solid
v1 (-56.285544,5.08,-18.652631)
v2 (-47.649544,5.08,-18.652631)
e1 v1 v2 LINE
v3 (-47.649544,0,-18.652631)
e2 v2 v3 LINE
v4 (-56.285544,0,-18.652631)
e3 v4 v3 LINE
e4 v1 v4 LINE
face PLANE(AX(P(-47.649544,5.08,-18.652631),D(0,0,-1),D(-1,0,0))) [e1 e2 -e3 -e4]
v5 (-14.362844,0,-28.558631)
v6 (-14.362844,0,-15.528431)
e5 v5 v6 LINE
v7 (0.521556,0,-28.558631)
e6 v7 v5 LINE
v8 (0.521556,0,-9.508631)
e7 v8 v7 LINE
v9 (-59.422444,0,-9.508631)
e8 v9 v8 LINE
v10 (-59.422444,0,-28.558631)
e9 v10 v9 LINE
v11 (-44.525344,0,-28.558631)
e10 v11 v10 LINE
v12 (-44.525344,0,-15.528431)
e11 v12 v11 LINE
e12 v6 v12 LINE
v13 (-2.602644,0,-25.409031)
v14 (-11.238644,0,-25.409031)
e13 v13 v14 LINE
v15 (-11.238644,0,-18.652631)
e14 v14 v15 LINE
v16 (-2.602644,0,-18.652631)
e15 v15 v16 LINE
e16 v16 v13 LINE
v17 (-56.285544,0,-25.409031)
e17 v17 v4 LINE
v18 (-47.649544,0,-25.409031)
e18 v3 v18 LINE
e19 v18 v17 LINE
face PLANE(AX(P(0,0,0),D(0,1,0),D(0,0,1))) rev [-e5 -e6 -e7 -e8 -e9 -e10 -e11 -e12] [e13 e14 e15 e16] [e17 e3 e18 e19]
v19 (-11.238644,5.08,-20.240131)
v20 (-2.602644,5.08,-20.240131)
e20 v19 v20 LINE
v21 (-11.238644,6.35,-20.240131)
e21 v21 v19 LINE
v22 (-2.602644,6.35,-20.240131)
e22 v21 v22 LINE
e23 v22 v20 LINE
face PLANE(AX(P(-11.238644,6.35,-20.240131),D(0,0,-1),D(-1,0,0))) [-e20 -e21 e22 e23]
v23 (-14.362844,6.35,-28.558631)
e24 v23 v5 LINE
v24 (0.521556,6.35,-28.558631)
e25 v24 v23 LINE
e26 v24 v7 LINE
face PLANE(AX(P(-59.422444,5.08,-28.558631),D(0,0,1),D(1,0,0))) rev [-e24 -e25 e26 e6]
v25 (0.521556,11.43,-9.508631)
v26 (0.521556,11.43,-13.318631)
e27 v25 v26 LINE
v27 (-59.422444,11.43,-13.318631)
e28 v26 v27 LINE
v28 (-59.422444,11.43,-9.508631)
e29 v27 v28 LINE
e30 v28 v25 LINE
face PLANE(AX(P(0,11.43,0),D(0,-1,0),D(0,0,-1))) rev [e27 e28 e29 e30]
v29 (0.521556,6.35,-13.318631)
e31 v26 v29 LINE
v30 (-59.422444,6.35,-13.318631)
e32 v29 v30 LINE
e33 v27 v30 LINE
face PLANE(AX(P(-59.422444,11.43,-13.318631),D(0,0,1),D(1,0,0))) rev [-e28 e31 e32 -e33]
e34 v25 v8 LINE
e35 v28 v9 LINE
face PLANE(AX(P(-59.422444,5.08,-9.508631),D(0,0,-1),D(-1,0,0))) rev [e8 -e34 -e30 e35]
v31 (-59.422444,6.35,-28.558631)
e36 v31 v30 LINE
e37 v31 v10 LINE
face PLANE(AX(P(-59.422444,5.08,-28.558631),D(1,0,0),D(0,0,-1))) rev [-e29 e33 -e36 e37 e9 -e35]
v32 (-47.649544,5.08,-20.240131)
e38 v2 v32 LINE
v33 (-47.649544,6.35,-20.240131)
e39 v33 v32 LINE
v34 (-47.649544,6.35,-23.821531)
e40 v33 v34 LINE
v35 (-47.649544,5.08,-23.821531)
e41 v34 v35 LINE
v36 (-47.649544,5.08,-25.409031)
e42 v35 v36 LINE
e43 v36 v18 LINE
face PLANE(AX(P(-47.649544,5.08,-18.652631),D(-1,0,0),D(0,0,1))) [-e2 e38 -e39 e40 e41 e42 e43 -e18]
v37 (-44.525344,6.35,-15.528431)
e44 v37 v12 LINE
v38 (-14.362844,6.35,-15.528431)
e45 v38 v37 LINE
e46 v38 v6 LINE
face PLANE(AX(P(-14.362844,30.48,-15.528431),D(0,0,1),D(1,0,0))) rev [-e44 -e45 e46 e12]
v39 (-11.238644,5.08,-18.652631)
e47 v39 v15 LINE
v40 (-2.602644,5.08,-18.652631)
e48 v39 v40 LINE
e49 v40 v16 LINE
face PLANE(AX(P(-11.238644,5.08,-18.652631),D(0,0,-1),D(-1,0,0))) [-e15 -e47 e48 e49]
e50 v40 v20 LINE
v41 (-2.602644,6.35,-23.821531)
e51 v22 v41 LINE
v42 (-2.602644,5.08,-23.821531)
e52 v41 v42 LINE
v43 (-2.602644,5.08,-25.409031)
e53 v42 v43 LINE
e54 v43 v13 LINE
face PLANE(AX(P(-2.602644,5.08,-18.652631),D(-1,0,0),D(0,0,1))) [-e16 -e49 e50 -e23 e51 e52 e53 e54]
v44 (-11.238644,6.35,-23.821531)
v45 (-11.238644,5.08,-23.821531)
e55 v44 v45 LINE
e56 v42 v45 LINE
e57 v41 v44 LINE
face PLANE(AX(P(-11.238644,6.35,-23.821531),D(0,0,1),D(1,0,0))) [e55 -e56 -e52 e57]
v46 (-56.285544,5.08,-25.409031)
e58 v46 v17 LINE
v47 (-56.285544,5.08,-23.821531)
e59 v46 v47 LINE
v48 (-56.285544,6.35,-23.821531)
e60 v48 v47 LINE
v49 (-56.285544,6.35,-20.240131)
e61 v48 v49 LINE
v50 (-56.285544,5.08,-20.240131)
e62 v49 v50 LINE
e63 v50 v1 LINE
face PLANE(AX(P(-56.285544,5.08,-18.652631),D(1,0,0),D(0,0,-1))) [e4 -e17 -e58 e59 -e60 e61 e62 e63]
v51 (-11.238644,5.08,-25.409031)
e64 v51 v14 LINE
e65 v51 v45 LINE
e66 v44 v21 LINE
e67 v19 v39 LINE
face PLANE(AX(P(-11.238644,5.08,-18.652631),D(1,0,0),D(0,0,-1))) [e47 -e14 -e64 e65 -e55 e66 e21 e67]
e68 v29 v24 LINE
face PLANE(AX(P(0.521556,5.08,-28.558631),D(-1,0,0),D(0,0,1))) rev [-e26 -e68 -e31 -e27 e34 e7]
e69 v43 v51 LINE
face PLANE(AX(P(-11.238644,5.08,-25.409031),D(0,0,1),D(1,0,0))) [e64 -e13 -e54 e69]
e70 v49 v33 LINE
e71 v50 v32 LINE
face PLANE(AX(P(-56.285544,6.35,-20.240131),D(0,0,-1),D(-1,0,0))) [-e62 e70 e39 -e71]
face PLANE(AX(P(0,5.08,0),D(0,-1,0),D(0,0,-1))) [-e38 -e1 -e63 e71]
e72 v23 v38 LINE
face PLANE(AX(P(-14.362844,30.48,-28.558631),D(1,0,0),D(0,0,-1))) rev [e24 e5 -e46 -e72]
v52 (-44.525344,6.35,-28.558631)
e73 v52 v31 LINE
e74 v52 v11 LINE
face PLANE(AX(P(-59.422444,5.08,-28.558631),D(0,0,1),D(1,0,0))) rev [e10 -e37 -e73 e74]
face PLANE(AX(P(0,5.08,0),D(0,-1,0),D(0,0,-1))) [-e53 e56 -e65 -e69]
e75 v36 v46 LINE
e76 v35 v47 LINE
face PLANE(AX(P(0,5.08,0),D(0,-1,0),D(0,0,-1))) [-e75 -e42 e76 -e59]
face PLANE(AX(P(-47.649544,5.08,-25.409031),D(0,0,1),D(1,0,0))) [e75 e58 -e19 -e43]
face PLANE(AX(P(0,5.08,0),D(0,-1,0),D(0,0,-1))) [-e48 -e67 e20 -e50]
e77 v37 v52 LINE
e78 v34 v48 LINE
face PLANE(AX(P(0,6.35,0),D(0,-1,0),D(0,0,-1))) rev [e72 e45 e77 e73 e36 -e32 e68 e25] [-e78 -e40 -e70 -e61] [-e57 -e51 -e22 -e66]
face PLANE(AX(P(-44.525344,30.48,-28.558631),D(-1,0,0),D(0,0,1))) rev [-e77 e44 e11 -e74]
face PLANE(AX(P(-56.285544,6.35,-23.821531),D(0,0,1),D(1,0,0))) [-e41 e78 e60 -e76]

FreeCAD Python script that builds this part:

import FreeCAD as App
import Part
import Sketcher

V = App.Vector
Q = App.Units.Quantity

doc = App.newDocument("Part")
body = doc.addObject("PartDesign::Body", "Body")

# Sketch on XZ plane
sketch1 = body.newObject("Sketcher::SketchObject", "Sketch")
sketch1.AttachmentSupport = (doc.getObject("XZ_Plane"), [""])
sketch1.MapMode = "FlatFace"
sketch1.addGeometry(Part.LineSegment(V(-59, -29, 0), V(-59, -10, 0)), False)
sketch1.addGeometry(Part.LineSegment(V(-59, -10, 0), V(1, -10, 0)), False)
sketch1.addGeometry(Part.LineSegment(V(1, -10, 0), V(1, -29, 0)), False)
sketch1.addGeometry(Part.LineSegment(V(1, -29, 0), V(-59, -29, 0)), False)
sketch1.addGeometry(Part.LineSegment(V(-48, -19, 0), V(-56, -19, 0)), False)
sketch1.addGeometry(Part.LineSegment(V(-56, -19, 0), V(-56, -25, 0)), False)
sketch1.addGeometry(Part.LineSegment(V(-56, -25, 0), V(-48, -25, 0)), False)
sketch1.addGeometry(Part.LineSegment(V(-48, -25, 0), V(-48, -19, 0)), False)
sketch1.addGeometry(Part.LineSegment(V(-3, -19, 0), V(-11, -19, 0)), False)
sketch1.addGeometry(Part.LineSegment(V(-11, -19, 0), V(-11, -25, 0)), False)
sketch1.addGeometry(Part.LineSegment(V(-11, -25, 0), V(-3, -25, 0)), False)
sketch1.addGeometry(Part.LineSegment(V(-3, -25, 0), V(-3, -19, 0)), False)
sketch1.addConstraint(Sketcher.Constraint("Coincident", 0, 2, 1, 1))
sketch1.addConstraint(Sketcher.Constraint("Coincident", 1, 2, 2, 1))
sketch1.addConstraint(Sketcher.Constraint("Coincident", 2, 2, 3, 1))
sketch1.addConstraint(Sketcher.Constraint("Coincident", 3, 2, 0, 1))
sketch1.addConstraint(Sketcher.Constraint("Coincident", 4, 2, 5, 1))
sketch1.addConstraint(Sketcher.Constraint("Coincident", 5, 2, 6, 1))
sketch1.addConstraint(Sketcher.Constraint("Coincident", 6, 2, 7, 1))
sketch1.addConstraint(Sketcher.Constraint("Coincident", 7, 2, 4, 1))
sketch1.addConstraint(Sketcher.Constraint("Coincident", 8, 2, 9, 1))
sketch1.addConstraint(Sketcher.Constraint("Coincident", 9, 2, 10, 1))
sketch1.addConstraint(Sketcher.Constraint("Coincident", 10, 2, 11, 1))
sketch1.addConstraint(Sketcher.Constraint("Coincident", 11, 2, 8, 1))
sketch1.addConstraint(Sketcher.Constraint("Vertical", 0))
sketch1.addConstraint(Sketcher.Constraint("Horizontal", 1))
sketch1.addConstraint(Sketcher.Constraint("Vertical", 2))
sketch1.addConstraint(Sketcher.Constraint("Horizontal", 3))
sketch1.addConstraint(Sketcher.Constraint("Horizontal", 4))
sketch1.addConstraint(Sketcher.Constraint("Vertical", 5))
sketch1.addConstraint(Sketcher.Constraint("Horizontal", 6))
sketch1.addConstraint(Sketcher.Constraint("Vertical", 7))
sketch1.addConstraint(Sketcher.Constraint("Horizontal", 8))
sketch1.addConstraint(Sketcher.Constraint("Vertical", 9))
sketch1.addConstraint(Sketcher.Constraint("Horizontal", 10))
sketch1.addConstraint(Sketcher.Constraint("Vertical", 11))
sketch1.addConstraint(Sketcher.Constraint("Horizontal", 7, 2, 8, 2))
sketch1.addConstraint(Sketcher.Constraint("Horizontal", 6, 2, 9, 2))
sketch1.addConstraint(Sketcher.Constraint("Equal", 6, 8))
sketch1.addConstraint(Sketcher.Constraint("DistanceX", 1, 1, 1, 2, Q("2.36 in")))
sketch1.addConstraint(Sketcher.Constraint("DistanceX", 4, 2, 4, 1, Q("0.34 in")))
sketch1.addConstraint(Sketcher.Constraint("DistanceY", 0, 1, 0, 2, Q("0.75 in")))
sketch1.addConstraint(Sketcher.Constraint("DistanceY", 5, 2, 5, 1, Q("0.266 in")))
sketch1.addConstraint(Sketcher.Constraint("DistanceY", 4, 2, 0, 2, Q("0.36 in")))
sketch1.addConstraint(Sketcher.Constraint("DistanceX", 8, 2, 1, 2, Q("0.463 in")))
sketch1.addConstraint(Sketcher.Constraint("DistanceX", 0, 2, 4, 2, Q("0.1235 in")))
sketch1.addConstraint(Sketcher.Constraint("DistanceY", 0, 2, -1, 1, Q("9.508631 mm")))
sketch1.addConstraint(Sketcher.Constraint("DistanceX", 0, 2, -1, 1, Q("59.422444 mm")))
pad1 = body.newObject("PartDesign::Pad", "Pad")
pad1.Profile = sketch1
pad1.Length = Q("0.2 in")
pad1.Reversed = True

# Sketch on XZ plane
sketch2 = body.newObject("Sketcher::SketchObject", "Sketch001")
sketch2.AttachmentSupport = (doc.getObject("XZ_Plane"), [""])
sketch2.MapMode = "FlatFace"
sketch2.AttachmentOffset = App.Placement(V(0, 0, -0.2 * 25.4), App.Rotation())
sketch2.addGeometry(Part.LineSegment(V(-59.4, -28.6, 0), V(-59.4, -9.5, 0)), False)
sketch2.addGeometry(Part.LineSegment(V(-59.4, -9.5, 0), V(0.5, -9.5, 0)), False)
sketch2.addGeometry(Part.LineSegment(V(0.5, -9.5, 0), V(0.5, -28.6, 0)), False)
sketch2.addGeometry(Part.LineSegment(V(0.5, -28.6, 0), V(-59.4, -28.6, 0)), False)
sketch2.addGeometry(Part.LineSegment(V(-47.6, -20.2, 0), V(-56.3, -20.2, 0)), False)
sketch2.addGeometry(Part.LineSegment(V(-56.3, -20.2, 0), V(-56.3, -23.8, 0)), False)
sketch2.addGeometry(Part.LineSegment(V(-56.3, -23.8, 0), V(-47.6, -23.8, 0)), False)
sketch2.addGeometry(Part.LineSegment(V(-47.6, -23.8, 0), V(-47.6, -20.2, 0)), False)
sketch2.addGeometry(Part.LineSegment(V(-2.6, -20.2, 0), V(-11.2, -20.2, 0)), False)
sketch2.addGeometry(Part.LineSegment(V(-11.2, -20.2, 0), V(-11.2, -23.8, 0)), False)
sketch2.addGeometry(Part.LineSegment(V(-11.2, -23.8, 0), V(-2.6, -23.8, 0)), False)
sketch2.addGeometry(Part.LineSegment(V(-2.6, -23.8, 0), V(-2.6, -20.2, 0)), False)
sketch2.addConstraint(Sketcher.Constraint("Coincident", 0, 2, 1, 1))
sketch2.addConstraint(Sketcher.Constraint("Coincident", 1, 2, 2, 1))
sketch2.addConstraint(Sketcher.Constraint("Coincident", 2, 2, 3, 1))
sketch2.addConstraint(Sketcher.Constraint("Coincident", 3, 2, 0, 1))
sketch2.addConstraint(Sketcher.Constraint("Coincident", 4, 2, 5, 1))
sketch2.addConstraint(Sketcher.Constraint("Coincident", 5, 2, 6, 1))
sketch2.addConstraint(Sketcher.Constraint("Coincident", 6, 2, 7, 1))
sketch2.addConstraint(Sketcher.Constraint("Coincident", 7, 2, 4, 1))
sketch2.addConstraint(Sketcher.Constraint("Coincident", 8, 2, 9, 1))
sketch2.addConstraint(Sketcher.Constraint("Coincident", 9, 2, 10, 1))
sketch2.addConstraint(Sketcher.Constraint("Coincident", 10, 2, 11, 1))
sketch2.addConstraint(Sketcher.Constraint("Coincident", 11, 2, 8, 1))
sketch2.addConstraint(Sketcher.Constraint("Vertical", 0))
sketch2.addConstraint(Sketcher.Constraint("Horizontal", 1))
sketch2.addConstraint(Sketcher.Constraint("Vertical", 2))
sketch2.addConstraint(Sketcher.Constraint("Horizontal", 3))
sketch2.addConstraint(Sketcher.Constraint("Horizontal", 4))
sketch2.addConstraint(Sketcher.Constraint("Vertical", 5))
sketch2.addConstraint(Sketcher.Constraint("Horizontal", 6))
sketch2.addConstraint(Sketcher.Constraint("Vertical", 7))
sketch2.addConstraint(Sketcher.Constraint("Horizontal", 8))
sketch2.addConstraint(Sketcher.Constraint("Vertical", 9))
sketch2.addConstraint(Sketcher.Constraint("Horizontal", 10))
sketch2.addConstraint(Sketcher.Constraint("Vertical", 11))
sketch2.addConstraint(Sketcher.Constraint("Horizontal", 7, 2, 8, 2))
sketch2.addConstraint(Sketcher.Constraint("Horizontal", 6, 2, 9, 2))
sketch2.addConstraint(Sketcher.Constraint("Equal", 6, 8))
sketch2.addConstraint(Sketcher.Constraint("DistanceX", 1, 1, 1, 2, Q("2.36 in")))
sketch2.addConstraint(Sketcher.Constraint("DistanceX", 4, 2, 4, 1, Q("0.34 in")))
sketch2.addConstraint(Sketcher.Constraint("DistanceY", 0, 1, 0, 2, Q("0.75 in")))
sketch2.addConstraint(Sketcher.Constraint("DistanceY", 5, 2, 5, 1, Q("0.141 in")))
sketch2.addConstraint(Sketcher.Constraint("DistanceX", 8, 2, 2, 2, Q("0.463 in")))
sketch2.addConstraint(Sketcher.Constraint("DistanceX", 3, 2, 4, 2, Q("0.1235 in")))
sketch2.addConstraint(Sketcher.Constraint("DistanceY", 3, 2, 4, 2, Q("0.3275 in")))
sketch2.addConstraint(Sketcher.Constraint("DistanceY", 0, 2, -1, 1, Q("9.508631 mm")))
sketch2.addConstraint(Sketcher.Constraint("DistanceX", 0, 2, -1, 1, Q("59.422444 mm")))
pad2 = body.newObject("PartDesign::Pad", "Pad001")
pad2.Profile = sketch2
pad2.Length = Q("0.05 in")
pad2.Reversed = True

# Sketch on XZ plane
sketch3 = body.newObject("Sketcher::SketchObject", "Sketch002")
sketch3.AttachmentSupport = (doc.getObject("XZ_Plane"), [""])
sketch3.MapMode = "FlatFace"
sketch3.addGeometry(Part.LineSegment(V(-45, -16, 0), V(-45, -29, 0)), False)
sketch3.addGeometry(Part.LineSegment(V(-45, -29, 0), V(-14, -29, 0)), False)
sketch3.addGeometry(Part.LineSegment(V(-14, -29, 0), V(-14, -16, 0)), False)
sketch3.addGeometry(Part.LineSegment(V(-14, -16, 0), V(-45, -16, 0)), False)
sketch3.addConstraint(Sketcher.Constraint("Coincident", 0, 2, 1, 1))
sketch3.addConstraint(Sketcher.Constraint("Coincident", 1, 2, 2, 1))
sketch3.addConstraint(Sketcher.Constraint("Coincident", 2, 2, 3, 1))
sketch3.addConstraint(Sketcher.Constraint("Coincident", 3, 2, 0, 1))
sketch3.addConstraint(Sketcher.Constraint("Vertical", 0))
sketch3.addConstraint(Sketcher.Constraint("Horizontal", 1))
sketch3.addConstraint(Sketcher.Constraint("Vertical", 2))
sketch3.addConstraint(Sketcher.Constraint("Horizontal", 3))
sketch3.addConstraint(Sketcher.Constraint("DistanceX", 1, 1, 1, 2, Q("1.1875 in")))
sketch3.addConstraint(Sketcher.Constraint("DistanceY", 0, 2, 0, 1, Q("0.513 in")))
sketch3.addConstraint(Sketcher.Constraint("DistanceY", 0, 2, -1, 1, Q("28.558631 mm")))
sketch3.addConstraint(Sketcher.Constraint("DistanceX", 0, 2, -1, 1, Q("44.525344 mm")))
pocket1 = body.newObject("PartDesign::Pocket", "Pocket")
pocket1.Profile = sketch3
pocket1.Length = Q("1.2 in")

# Sketch on XZ plane
sketch4 = body.newObject("Sketcher::SketchObject", "Sketch003")
sketch4.AttachmentSupport = (doc.getObject("XZ_Plane"), [""])
sketch4.MapMode = "FlatFace"
sketch4.AttachmentOffset = App.Placement(V(0, 0, -0.25 * 25.4), App.Rotation())
sketch4.addGeometry(Part.LineSegment(V(-59.4, -13.3, 0), V(-59.4, -9.5, 0)), False)
sketch4.addGeometry(Part.LineSegment(V(-59.4, -9.5, 0), V(0.5, -9.5, 0)), False)
sketch4.addGeometry(Part.LineSegment(V(0.5, -9.5, 0), V(0.5, -13.3, 0)), False)
sketch4.addGeometry(Part.LineSegment(V(0.5, -13.3, 0), V(-59.4, -13.3, 0)), False)
sketch4.addConstraint(Sketcher.Constraint("Coincident", 0, 2, 1, 1))
sketch4.addConstraint(Sketcher.Constraint("Coincident", 1, 2, 2, 1))
sketch4.addConstraint(Sketcher.Constraint("Coincident", 2, 2, 3, 1))
sketch4.addConstraint(Sketcher.Constraint("Coincident", 3, 2, 0, 1))
sketch4.addConstraint(Sketcher.Constraint("Vertical", 0))
sketch4.addConstraint(Sketcher.Constraint("Horizontal", 1))
sketch4.addConstraint(Sketcher.Constraint("Vertical", 2))
sketch4.addConstraint(Sketcher.Constraint("Horizontal", 3))
sketch4.addConstraint(Sketcher.Constraint("DistanceX", 1, 1, 1, 2, Q("2.36 in")))
sketch4.addConstraint(Sketcher.Constraint("DistanceY", 0, 1, 0, 2, Q("0.15 in")))
sketch4.addConstraint(Sketcher.Constraint("DistanceY", 0, 2, -1, 1, Q("9.508631 mm")))
sketch4.addConstraint(Sketcher.Constraint("DistanceX", 0, 2, -1, 1, Q("59.422444 mm")))
pad3 = body.newObject("PartDesign::Pad", "Pad002")
pad3.Profile = sketch4
pad3.Length = Q("0.2 in")
pad3.Reversed = True

doc.recompute()
